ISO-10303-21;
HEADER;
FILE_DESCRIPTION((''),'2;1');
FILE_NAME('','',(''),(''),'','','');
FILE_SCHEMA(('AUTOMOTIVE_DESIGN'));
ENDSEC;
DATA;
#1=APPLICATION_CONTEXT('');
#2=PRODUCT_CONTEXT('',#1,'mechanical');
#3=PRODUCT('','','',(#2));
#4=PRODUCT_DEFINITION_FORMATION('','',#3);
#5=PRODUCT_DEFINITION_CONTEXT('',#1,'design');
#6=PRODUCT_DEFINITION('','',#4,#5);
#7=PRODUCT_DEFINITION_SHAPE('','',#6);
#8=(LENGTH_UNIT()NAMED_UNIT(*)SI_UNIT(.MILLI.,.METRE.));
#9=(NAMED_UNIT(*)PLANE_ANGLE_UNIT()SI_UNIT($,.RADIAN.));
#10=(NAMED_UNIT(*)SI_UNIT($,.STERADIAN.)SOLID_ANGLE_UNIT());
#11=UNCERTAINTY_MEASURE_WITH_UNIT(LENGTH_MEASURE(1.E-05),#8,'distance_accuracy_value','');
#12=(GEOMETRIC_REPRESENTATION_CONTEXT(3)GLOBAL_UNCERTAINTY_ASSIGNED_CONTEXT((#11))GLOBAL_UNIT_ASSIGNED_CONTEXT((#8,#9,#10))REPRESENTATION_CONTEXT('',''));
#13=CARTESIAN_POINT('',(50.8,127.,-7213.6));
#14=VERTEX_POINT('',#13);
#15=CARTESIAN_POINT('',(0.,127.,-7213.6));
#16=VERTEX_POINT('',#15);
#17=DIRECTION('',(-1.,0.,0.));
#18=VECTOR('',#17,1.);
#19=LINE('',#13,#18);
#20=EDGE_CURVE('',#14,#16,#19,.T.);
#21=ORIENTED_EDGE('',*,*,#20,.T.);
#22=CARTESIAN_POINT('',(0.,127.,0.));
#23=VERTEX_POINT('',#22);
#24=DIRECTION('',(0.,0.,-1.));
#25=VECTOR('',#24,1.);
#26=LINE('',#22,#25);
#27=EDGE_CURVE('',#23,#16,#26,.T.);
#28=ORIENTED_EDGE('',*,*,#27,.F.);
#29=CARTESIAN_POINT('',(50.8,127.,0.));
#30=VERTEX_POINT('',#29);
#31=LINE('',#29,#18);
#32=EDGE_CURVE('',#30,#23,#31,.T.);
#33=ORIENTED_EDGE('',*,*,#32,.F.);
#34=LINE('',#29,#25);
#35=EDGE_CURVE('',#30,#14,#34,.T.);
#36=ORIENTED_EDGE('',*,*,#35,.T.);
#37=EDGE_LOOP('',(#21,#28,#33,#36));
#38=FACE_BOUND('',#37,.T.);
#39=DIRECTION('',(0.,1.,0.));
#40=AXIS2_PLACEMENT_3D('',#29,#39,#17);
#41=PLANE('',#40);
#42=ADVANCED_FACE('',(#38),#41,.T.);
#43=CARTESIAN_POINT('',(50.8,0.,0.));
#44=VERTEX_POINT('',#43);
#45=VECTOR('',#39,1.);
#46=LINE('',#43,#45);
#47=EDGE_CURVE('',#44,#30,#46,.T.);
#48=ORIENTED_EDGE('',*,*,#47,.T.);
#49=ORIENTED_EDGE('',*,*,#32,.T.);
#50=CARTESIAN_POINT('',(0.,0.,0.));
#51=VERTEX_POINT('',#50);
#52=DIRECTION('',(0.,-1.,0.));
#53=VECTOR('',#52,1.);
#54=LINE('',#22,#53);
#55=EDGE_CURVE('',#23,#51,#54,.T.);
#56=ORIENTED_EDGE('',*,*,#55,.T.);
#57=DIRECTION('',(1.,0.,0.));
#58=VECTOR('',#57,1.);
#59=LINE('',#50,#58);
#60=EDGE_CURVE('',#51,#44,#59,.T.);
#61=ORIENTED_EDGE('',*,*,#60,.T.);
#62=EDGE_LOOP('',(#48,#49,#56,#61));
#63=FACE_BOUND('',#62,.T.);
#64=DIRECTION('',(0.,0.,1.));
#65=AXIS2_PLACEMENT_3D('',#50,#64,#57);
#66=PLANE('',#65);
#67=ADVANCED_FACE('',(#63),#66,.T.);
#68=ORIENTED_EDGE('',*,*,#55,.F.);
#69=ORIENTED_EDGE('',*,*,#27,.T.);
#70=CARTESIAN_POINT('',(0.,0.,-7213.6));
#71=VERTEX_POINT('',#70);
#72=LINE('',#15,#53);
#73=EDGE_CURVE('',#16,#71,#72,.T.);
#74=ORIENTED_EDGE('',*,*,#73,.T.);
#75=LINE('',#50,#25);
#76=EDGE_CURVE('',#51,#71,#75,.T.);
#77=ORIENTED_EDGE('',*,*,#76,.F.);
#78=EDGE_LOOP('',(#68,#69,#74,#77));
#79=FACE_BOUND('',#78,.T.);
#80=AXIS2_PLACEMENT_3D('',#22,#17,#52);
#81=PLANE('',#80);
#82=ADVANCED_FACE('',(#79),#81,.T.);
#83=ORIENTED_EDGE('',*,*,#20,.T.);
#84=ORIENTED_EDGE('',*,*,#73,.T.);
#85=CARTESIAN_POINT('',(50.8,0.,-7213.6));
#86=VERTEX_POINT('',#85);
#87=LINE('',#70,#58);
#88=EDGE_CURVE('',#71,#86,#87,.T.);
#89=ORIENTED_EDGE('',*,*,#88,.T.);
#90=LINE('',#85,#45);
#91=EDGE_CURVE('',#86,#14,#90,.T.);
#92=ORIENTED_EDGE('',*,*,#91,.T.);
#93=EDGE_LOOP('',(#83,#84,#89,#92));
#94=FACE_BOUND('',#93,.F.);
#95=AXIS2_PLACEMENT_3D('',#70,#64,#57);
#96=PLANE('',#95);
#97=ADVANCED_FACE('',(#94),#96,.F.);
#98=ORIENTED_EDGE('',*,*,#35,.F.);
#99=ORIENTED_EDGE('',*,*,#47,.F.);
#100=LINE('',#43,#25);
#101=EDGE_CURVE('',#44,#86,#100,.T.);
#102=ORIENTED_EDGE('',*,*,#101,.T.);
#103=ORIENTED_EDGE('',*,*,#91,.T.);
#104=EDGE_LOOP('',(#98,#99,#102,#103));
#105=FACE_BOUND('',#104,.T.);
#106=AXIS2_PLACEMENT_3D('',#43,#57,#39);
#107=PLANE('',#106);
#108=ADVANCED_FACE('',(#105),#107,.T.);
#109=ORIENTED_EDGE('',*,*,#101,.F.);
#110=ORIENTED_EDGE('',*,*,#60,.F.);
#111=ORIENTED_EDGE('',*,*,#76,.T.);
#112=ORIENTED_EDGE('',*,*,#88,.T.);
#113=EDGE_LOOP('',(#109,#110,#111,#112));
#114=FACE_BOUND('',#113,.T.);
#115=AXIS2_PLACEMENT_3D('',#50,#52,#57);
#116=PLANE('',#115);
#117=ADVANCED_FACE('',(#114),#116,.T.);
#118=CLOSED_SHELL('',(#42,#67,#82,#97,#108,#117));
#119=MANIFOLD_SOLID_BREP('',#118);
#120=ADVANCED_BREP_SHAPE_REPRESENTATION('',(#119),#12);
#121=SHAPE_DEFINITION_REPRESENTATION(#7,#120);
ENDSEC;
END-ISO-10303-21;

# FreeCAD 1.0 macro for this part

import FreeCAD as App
import Part
import Sketcher

V = App.Vector
Q = App.Units.Quantity


def add_polygon(sketch, points):
    """Adds a closed chain of lines whose ends are joined by coincident constraints."""
    first, n = sketch.GeometryCount, len(points)
    for a, b in zip(points, points[1:] + points[:1]):
        sketch.addGeometry(Part.LineSegment(App.Vector(*a, 0), App.Vector(*b, 0)), False)
    for i in range(n):
        sketch.addConstraint(Sketcher.Constraint("Coincident", first + i, 2, first + (i + 1) % n, 1))

doc = App.newDocument("Part")
body = doc.addObject("PartDesign::Body", "Body")

# Sketch on XY plane
sketch1 = doc.addObject("Sketcher::SketchObject", "Sketch")
body.addObject(sketch1)
sketch1.AttachmentSupport = (doc.XY_Plane, [""])
sketch1.MapMode = "FlatFace"
add_polygon(sketch1, [(0, 127), (0, 0), (50.8, 0), (50.8, 127)])  # lines 0-3
sketch1.addConstraint([
    Sketcher.Constraint("Vertical", 0),
    Sketcher.Constraint("Horizontal", 1),
    Sketcher.Constraint("Vertical", 2),
    Sketcher.Constraint("Horizontal", 3),
    Sketcher.Constraint("Coincident", 0, 2, -1, 1),
    Sketcher.Constraint("DistanceX", 1, 1, 1, 2, Q("2 in")),
    Sketcher.Constraint("DistanceY", 0, 2, 0, 1, Q("5 in")),
])
pad1 = doc.addObject("PartDesign::Pad", "Pad")
body.addObject(pad1)
pad1.Profile = sketch1
pad1.Length = Q("284 in")
pad1.Reversed = True

doc.recompute()
